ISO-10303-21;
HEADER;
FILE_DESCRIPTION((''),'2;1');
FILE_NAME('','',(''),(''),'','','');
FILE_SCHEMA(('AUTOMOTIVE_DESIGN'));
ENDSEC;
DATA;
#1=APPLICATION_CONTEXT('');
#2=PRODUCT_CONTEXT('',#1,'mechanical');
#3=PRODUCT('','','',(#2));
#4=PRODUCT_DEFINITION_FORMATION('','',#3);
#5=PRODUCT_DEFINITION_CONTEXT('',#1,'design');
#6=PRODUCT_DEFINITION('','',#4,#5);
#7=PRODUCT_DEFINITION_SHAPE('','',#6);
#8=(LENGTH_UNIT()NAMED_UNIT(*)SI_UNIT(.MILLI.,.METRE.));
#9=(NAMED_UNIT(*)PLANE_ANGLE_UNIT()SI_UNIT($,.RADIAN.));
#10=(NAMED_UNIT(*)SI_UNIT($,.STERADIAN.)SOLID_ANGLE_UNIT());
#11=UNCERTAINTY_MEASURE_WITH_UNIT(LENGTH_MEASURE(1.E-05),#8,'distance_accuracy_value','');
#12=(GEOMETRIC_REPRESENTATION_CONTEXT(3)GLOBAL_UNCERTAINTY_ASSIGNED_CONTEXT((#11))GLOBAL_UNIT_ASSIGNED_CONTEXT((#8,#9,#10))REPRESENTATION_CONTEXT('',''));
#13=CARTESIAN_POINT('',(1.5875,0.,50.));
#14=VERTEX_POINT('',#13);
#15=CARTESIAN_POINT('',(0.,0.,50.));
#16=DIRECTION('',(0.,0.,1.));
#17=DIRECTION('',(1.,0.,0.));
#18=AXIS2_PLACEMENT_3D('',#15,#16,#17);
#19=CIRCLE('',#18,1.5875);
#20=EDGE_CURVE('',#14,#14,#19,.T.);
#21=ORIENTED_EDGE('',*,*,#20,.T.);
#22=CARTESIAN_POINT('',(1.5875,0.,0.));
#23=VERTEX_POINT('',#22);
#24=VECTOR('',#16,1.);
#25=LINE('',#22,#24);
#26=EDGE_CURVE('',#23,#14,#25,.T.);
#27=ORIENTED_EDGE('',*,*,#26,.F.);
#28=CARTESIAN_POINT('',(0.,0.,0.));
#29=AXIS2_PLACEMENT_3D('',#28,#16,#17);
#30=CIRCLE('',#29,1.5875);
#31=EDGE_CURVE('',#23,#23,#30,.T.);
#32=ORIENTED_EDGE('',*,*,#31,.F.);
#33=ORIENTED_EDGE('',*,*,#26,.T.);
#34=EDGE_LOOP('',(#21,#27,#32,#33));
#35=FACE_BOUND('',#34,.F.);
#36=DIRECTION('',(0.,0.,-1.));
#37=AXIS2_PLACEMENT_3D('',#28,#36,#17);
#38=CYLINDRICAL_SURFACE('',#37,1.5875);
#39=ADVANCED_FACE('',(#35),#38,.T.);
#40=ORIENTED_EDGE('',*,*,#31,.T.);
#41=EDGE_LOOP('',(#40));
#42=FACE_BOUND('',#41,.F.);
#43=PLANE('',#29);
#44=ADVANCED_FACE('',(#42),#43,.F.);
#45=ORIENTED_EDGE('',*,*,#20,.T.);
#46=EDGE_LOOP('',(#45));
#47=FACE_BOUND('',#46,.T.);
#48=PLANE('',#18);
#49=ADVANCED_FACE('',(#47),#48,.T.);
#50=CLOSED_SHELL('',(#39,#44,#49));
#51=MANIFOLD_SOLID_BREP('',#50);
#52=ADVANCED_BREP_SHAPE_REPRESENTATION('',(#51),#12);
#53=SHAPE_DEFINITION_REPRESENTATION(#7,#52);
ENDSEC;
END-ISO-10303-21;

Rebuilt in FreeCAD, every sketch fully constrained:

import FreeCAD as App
import Part
import Sketcher

V = App.Vector
Q = App.Units.Quantity

doc = App.newDocument("Part")
body = doc.addObject("PartDesign::Body", "Body")

sketch1 = body.newObject("Sketcher::SketchObject", "Sketch")
sketch1.AttachmentSupport = (doc.getObject("XY_Plane"), [""])
sketch1.MapMode = "FlatFace"
sketch1.addGeometry(Part.Circle(V(0, 0, 0), V(0, 0, 1), 1.6), False)
sketch1.addConstraint(Sketcher.Constraint("Coincident", 0, 3, -1, 1))
sketch1.addConstraint(Sketcher.Constraint("Diameter", 0, Q("0.125 in")))
pad1 = body.newObject("PartDesign::Pad", "Pad")
pad1.Profile = sketch1
pad1.Length = Q("1.9685039 in")

doc.recompute()
